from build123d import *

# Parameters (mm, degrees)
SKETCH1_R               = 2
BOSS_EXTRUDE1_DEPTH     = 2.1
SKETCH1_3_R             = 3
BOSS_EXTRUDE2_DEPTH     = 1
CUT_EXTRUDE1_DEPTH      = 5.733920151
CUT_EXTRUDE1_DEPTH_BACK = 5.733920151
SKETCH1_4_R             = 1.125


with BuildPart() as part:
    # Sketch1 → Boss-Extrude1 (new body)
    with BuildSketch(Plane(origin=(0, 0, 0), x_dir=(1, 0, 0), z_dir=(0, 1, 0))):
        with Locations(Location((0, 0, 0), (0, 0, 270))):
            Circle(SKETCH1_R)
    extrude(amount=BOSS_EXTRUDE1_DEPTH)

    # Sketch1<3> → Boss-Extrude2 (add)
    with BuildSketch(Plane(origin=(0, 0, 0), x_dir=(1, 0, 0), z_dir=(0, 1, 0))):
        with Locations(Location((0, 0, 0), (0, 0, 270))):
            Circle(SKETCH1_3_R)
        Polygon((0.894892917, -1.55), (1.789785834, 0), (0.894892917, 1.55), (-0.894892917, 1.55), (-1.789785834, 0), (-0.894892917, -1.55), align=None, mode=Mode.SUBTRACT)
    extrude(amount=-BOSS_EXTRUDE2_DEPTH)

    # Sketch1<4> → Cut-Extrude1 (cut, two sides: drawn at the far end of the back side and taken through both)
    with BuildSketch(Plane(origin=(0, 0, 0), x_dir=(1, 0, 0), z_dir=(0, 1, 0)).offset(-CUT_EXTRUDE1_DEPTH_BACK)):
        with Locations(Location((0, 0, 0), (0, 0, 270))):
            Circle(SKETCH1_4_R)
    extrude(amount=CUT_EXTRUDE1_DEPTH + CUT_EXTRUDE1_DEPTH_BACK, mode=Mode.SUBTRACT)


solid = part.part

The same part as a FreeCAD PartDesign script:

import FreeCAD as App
import Part
import Sketcher
from FreeCAD import Vector
Q = App.Units.Quantity

doc = App.newDocument("Part")
params = doc.addObject("Spreadsheet::Sheet", "Params")
for row, (alias, value) in enumerate([
    ("sketch1_diameter", "4 mm"),
    ("pad1_length", "2.1 mm"),
    ("sketch2_diameter", "6 mm"),
    ("pad2_length", "1 mm"),
    ("sketch3_diameter", "2.25 mm"),
], start=1):
    params.set(f"A{row}", alias)
    params.set(f"B{row}", "=" + value)
    params.setAlias(f"B{row}", alias)

body = doc.addObject("PartDesign::Body", "Body")

# Sketch on XZ plane
sketch1 = body.newObject("Sketcher::SketchObject", "Sketch")
sketch1.AttachmentSupport = (doc.getObject("XZ_Plane"), [""])
sketch1.MapMode = "FlatFace"
sketch1.addGeometry(Part.Circle(Vector(0, 0, 0), Vector(0, 0, 1), 2), False)
sketch1.addConstraint([
    Sketcher.Constraint("Coincident", 0, 3, -1, 1),
    Sketcher.Constraint("Diameter", 0, Q("4 mm")),
])
sketch1.setExpression("Constraints[1]", "Params.sketch1_diameter")
pad1 = body.newObject("PartDesign::Pad", "Pad")
pad1.Profile = sketch1
pad1.setExpression("Length", "Params.pad1_length")
pad1.Reversed = True

# Sketch on XZ plane
sketch2 = body.newObject("Sketcher::SketchObject", "Sketch001")
sketch2.AttachmentSupport = (doc.getObject("XZ_Plane"), [""])
sketch2.MapMode = "FlatFace"
sketch2.addGeometry([
    Part.Circle(Vector(0, 0, 0), Vector(0, 0, 1), 3),  # 0
    Part.LineSegment(Vector(1.8, 0, 0), Vector(0.9, 1.6, 0)),  # 1
    Part.LineSegment(Vector(0.9, 1.6, 0), Vector(-0.9, 1.6, 0)),  # 2
    Part.LineSegment(Vector(-0.9, 1.6, 0), Vector(-1.8, 0, 0)),  # 3
    Part.LineSegment(Vector(-1.8, 0, 0), Vector(-0.9, -1.6, 0)),  # 4
    Part.LineSegment(Vector(-0.9, -1.6, 0), Vector(0.9, -1.6, 0)),  # 5
    Part.LineSegment(Vector(0.9, -1.6, 0), Vector(1.8, 0, 0)),  # 6
], False)
sketch2.addConstraint([
    Sketcher.Constraint("Coincident", 1, 2, 2, 1),
    Sketcher.Constraint("Coincident", 2, 2, 3, 1),
    Sketcher.Constraint("Coincident", 3, 2, 4, 1),
    Sketcher.Constraint("Coincident", 4, 2, 5, 1),
    Sketcher.Constraint("Coincident", 5, 2, 6, 1),
    Sketcher.Constraint("Coincident", 6, 2, 1, 1),
    Sketcher.Constraint("Horizontal", 2),
    Sketcher.Constraint("Horizontal", 5),
    Sketcher.Constraint("Coincident", 0, 3, -1, 1),
    Sketcher.Constraint("Symmetric", 1, 2, 4, 2, -1, 1),
    Sketcher.Constraint("Symmetric", 3, 2, 6, 2, -1, 1),
    Sketcher.Constraint("PointOnObject", 3, 2, -1),
    Sketcher.Constraint("Parallel", 3, 6),
    Sketcher.Constraint("Vertical", 2, 2, 4, 2),
    Sketcher.Constraint("Diameter", 0, Q("6 mm")),
    Sketcher.Constraint("Angle", 1, Q("120 deg")),
    Sketcher.Constraint("DistanceY", 4, 2, 2, 2, Q("3.1 mm")),
    Sketcher.Constraint("DistanceX", 2, 2, 2, 1, Q("1.789786 mm")),
])
sketch2.setExpression("Constraints[14]", "Params.sketch2_diameter")
pad2 = body.newObject("PartDesign::Pad", "Pad001")
pad2.Profile = sketch2
pad2.setExpression("Length", "Params.pad2_length")

# Sketch on XZ plane
sketch3 = body.newObject("Sketcher::SketchObject", "Sketch002")
sketch3.AttachmentSupport = (doc.getObject("XZ_Plane"), [""])
sketch3.MapMode = "FlatFace"
sketch3.addGeometry(Part.Circle(Vector(0, 0, 0), Vector(0, 0, 1), 1.1), False)
sketch3.addConstraint([
    Sketcher.Constraint("Coincident", 0, 3, -1, 1),
    Sketcher.Constraint("Diameter", 0, Q("2.25 mm")),
])
sketch3.setExpression("Constraints[1]", "Params.sketch3_diameter")
pocket1 = body.newObject("PartDesign::Pocket", "Pocket")
pocket1.Profile = sketch3
pocket1.Type = "ThroughAll"
pocket1.Midplane = True

doc.recompute()
